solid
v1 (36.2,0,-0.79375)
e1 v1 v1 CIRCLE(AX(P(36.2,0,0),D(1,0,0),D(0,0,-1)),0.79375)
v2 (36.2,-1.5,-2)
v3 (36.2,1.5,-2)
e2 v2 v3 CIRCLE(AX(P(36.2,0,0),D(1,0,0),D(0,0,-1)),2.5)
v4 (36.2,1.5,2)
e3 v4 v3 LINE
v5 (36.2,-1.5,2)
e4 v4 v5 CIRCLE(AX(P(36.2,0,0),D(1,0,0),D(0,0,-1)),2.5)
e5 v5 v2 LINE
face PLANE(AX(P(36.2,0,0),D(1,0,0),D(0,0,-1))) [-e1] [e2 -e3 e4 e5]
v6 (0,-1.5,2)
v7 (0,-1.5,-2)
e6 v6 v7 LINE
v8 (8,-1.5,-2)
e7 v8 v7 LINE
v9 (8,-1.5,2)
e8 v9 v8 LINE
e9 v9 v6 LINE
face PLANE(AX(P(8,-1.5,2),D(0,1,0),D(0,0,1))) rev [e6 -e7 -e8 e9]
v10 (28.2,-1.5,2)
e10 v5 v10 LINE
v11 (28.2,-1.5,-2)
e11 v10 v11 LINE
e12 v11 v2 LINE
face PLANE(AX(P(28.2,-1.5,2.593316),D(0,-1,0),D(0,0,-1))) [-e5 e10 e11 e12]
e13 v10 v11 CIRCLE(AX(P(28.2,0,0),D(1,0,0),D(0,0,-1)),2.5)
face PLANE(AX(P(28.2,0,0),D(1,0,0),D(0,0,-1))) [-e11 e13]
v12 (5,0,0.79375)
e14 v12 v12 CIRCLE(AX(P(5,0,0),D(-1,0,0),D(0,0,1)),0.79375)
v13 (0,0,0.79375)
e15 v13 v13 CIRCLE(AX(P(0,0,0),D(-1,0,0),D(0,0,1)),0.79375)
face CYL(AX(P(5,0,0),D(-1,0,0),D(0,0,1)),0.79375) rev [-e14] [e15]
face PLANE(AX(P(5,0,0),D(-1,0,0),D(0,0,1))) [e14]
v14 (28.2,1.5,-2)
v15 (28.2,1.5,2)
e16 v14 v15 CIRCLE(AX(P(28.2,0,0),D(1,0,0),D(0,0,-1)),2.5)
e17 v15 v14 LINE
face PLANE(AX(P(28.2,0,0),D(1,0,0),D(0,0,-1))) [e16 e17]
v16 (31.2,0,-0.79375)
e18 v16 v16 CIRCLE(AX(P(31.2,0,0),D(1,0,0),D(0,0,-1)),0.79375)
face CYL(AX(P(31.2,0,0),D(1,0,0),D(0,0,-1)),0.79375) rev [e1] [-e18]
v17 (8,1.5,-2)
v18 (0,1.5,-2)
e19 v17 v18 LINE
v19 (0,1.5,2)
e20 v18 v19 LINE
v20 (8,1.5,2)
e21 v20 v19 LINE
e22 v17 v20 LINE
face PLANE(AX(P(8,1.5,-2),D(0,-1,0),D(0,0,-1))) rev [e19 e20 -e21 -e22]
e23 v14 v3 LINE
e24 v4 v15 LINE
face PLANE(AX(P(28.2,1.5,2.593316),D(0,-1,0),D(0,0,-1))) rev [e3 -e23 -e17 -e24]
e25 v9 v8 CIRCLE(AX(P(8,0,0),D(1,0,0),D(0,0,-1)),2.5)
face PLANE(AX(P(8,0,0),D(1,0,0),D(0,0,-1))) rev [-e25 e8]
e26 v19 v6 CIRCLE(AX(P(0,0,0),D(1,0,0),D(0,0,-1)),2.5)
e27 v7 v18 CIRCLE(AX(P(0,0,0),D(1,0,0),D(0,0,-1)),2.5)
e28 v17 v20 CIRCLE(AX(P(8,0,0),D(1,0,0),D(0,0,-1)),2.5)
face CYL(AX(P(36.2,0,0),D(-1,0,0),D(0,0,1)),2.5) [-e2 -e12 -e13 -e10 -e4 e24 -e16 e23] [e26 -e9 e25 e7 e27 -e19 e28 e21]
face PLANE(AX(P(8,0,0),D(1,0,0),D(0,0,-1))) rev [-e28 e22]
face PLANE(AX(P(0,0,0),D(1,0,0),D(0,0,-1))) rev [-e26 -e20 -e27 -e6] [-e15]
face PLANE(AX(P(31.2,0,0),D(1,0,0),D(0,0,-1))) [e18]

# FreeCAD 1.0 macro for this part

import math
import FreeCAD as App
import Part
import Sketcher

V = App.Vector
Q = App.Units.Quantity

doc = App.newDocument("Part")
params = doc.addObject("Spreadsheet::Sheet", "Params")
for row, (alias, value) in enumerate([
    ("sketch1_diameter", "5 mm"),
    ("pad1_length", "36.2 mm"),
    ("sketch2_width", "3 mm"),
    ("pocket1_length", "8 mm"),
    ("pocket2_length", "5 mm"),
    ("sketch4_radius", "2.5 mm"),
    ("sketch4_height", "4 mm"),
    ("pocket3_length", "8 mm"),
    ("pocket4_length", "5 mm"),
], start=1):
    params.set(f"A{row}", alias)
    params.set(f"B{row}", "=" + value)
    params.setAlias(f"B{row}", alias)

body = doc.addObject("PartDesign::Body", "Body")

sketch1 = body.newObject("Sketcher::SketchObject", "Sketch")
sketch1.AttachmentSupport = (doc.getObject("YZ_Plane"), [""])
sketch1.MapMode = "FlatFace"
sketch1.addGeometry(Part.Circle(V(0, 0, 0), V(0, 0, 1), 2.5), False)
sketch1.addConstraint([
    Sketcher.Constraint("Coincident", 0, 3, -1, 1),
    Sketcher.Constraint("Diameter", 0, Q("5 mm")),
])
sketch1.setExpression("Constraints[1]", "Params.sketch1_diameter")
pad1 = body.newObject("PartDesign::Pad", "Pad")
pad1.Profile = sketch1
pad1.setExpression("Length", "Params.pad1_length")

sketch2 = body.newObject("Sketcher::SketchObject", "Sketch001")
sketch2.AttachmentSupport = (doc.getObject("YZ_Plane"), [""])
sketch2.MapMode = "FlatFace"
sketch2.AttachmentOffset = App.Placement(V(0, 0, 36.2), App.Rotation())
sketch2.addGeometry([
    Part.LineSegment(V(7.2, 7.2, 0), V(-7.2, 7.2, 0)),
    Part.LineSegment(V(-7.2, 7.2, 0), V(-7.2, -7.2, 0)),
    Part.LineSegment(V(-7.2, -7.2, 0), V(7.2, -7.2, 0)),
    Part.LineSegment(V(7.2, -7.2, 0), V(7.2, 7.2, 0)),
    Part.LineSegment(V(-1.5, -2.6, 0), V(-1.5, 2.6, 0)),
    Part.LineSegment(V(-1.5, 2.6, 0), V(1.5, 2.6, 0)),
    Part.LineSegment(V(1.5, 2.6, 0), V(1.5, -2.6, 0)),
    Part.LineSegment(V(1.5, -2.6, 0), V(-1.5, -2.6, 0)),
], False)
sketch2.addConstraint([
    Sketcher.Constraint("Coincident", 0, 2, 1, 1),
    Sketcher.Constraint("Coincident", 1, 2, 2, 1),
    Sketcher.Constraint("Coincident", 2, 2, 3, 1),
    Sketcher.Constraint("Coincident", 3, 2, 0, 1),
    Sketcher.Constraint("Coincident", 4, 2, 5, 1),
    Sketcher.Constraint("Coincident", 5, 2, 6, 1),
    Sketcher.Constraint("Coincident", 6, 2, 7, 1),
    Sketcher.Constraint("Coincident", 7, 2, 4, 1),
    Sketcher.Constraint("Horizontal", 0),
    Sketcher.Constraint("Vertical", 1),
    Sketcher.Constraint("Horizontal", 2),
    Sketcher.Constraint("Vertical", 3),
    Sketcher.Constraint("Vertical", 4),
    Sketcher.Constraint("Horizontal", 5),
    Sketcher.Constraint("Vertical", 6),
    Sketcher.Constraint("Horizontal", 7),
    Sketcher.Constraint("Symmetric", 0, 2, 2, 2, -1, 1),
    Sketcher.Constraint("Symmetric", 4, 2, 6, 2, -1, 1),
    Sketcher.Constraint("Equal", 2, 1),
    Sketcher.Constraint("DistanceX", 5, 1, 5, 2, Q("3 mm")),
    Sketcher.Constraint("DistanceX", 0, 2, 0, 1, Q("14.376 mm")),
    Sketcher.Constraint("DistanceY", 4, 1, 4, 2, Q("5.186632 mm")),
])
sketch2.setExpression("Constraints[19]", "Params.sketch2_width")
pocket1 = body.newObject("PartDesign::Pocket", "Pocket")
pocket1.Profile = sketch2
pocket1.setExpression("Length", "Params.pocket1_length")

sketch3 = body.newObject("Sketcher::SketchObject", "Sketch002")
sketch3.AttachmentSupport = (doc.getObject("YZ_Plane"), [""])
sketch3.MapMode = "FlatFace"
sketch3.AttachmentOffset = App.Placement(V(0, 0, 36.2), App.Rotation())
sketch3.addGeometry(Part.Circle(V(0, 0, 0), V(0, 0, 1), 0.8), False)
sketch3.addConstraint([
    Sketcher.Constraint("Coincident", 0, 3, -1, 1),
    Sketcher.Constraint("Diameter", 0, Q("1.5875 mm")),
])
pocket2 = body.newObject("PartDesign::Pocket", "Pocket001")
pocket2.Profile = sketch3
pocket2.setExpression("Length", "Params.pocket2_length")

sketch4 = body.newObject("Sketcher::SketchObject", "Sketch003")
sketch4.AttachmentSupport = (doc.getObject("YZ_Plane"), [""])
sketch4.MapMode = "FlatFace"
sketch4.addGeometry([
    Part.LineSegment(V(7.2, 7.2, 0), V(-7.2, 7.2, 0)),
    Part.LineSegment(V(-7.2, 7.2, 0), V(-7.2, -7.2, 0)),
    Part.LineSegment(V(-7.2, -7.2, 0), V(7.2, -7.2, 0)),
    Part.LineSegment(V(7.2, -7.2, 0), V(7.2, 7.2, 0)),
    Part.LineSegment(V(1.5, 2, 0), V(1.5, -2, 0)),
    Part.ArcOfCircle(Part.Circle(V(0, 0, 0), V(0, 0, 1), 2.5), math.radians(-127), math.radians(-53)),
    Part.LineSegment(V(-1.5, -2, 0), V(-1.5, 2, 0)),
    Part.ArcOfCircle(Part.Circle(V(0, 0, 0), V(0, 0, 1), 2.5), math.radians(53), math.radians(127)),
], False)
sketch4.addConstraint([
    Sketcher.Constraint("Coincident", 0, 2, 1, 1),
    Sketcher.Constraint("Coincident", 1, 2, 2, 1),
    Sketcher.Constraint("Coincident", 2, 2, 3, 1),
    Sketcher.Constraint("Coincident", 3, 2, 0, 1),
    Sketcher.Constraint("Coincident", 4, 2, 5, 2),
    Sketcher.Constraint("Coincident", 5, 1, 6, 1),
    Sketcher.Constraint("Coincident", 6, 2, 7, 2),
    Sketcher.Constraint("Coincident", 7, 1, 4, 1),
    Sketcher.Constraint("Horizontal", 0),
    Sketcher.Constraint("Vertical", 1),
    Sketcher.Constraint("Horizontal", 2),
    Sketcher.Constraint("Vertical", 3),
    Sketcher.Constraint("Vertical", 4),
    Sketcher.Constraint("Vertical", 6),
    Sketcher.Constraint("Coincident", 5, 3, -1, 1),
    Sketcher.Constraint("Coincident", 7, 3, -1, 1),
    Sketcher.Constraint("Equal", 5, 7),
    Sketcher.Constraint("Symmetric", 0, 2, 2, 2, -1, 1),
    Sketcher.Constraint("Horizontal", 4, 2, 5, 1),
    Sketcher.Constraint("Equal", 2, 1),
    Sketcher.Constraint("Radius", 5, Q("2.5 mm")),
    Sketcher.Constraint("DistanceY", 4, 2, 4, 1, Q("4 mm")),
    Sketcher.Constraint("DistanceX", 0, 2, 0, 1, Q("14.376 mm")),
])
sketch4.setExpression("Constraints[20]", "Params.sketch4_radius")
sketch4.setExpression("Constraints[21]", "Params.sketch4_height")
pocket3 = body.newObject("PartDesign::Pocket", "Pocket002")
pocket3.Profile = sketch4
pocket3.setExpression("Length", "Params.pocket3_length")
pocket3.Reversed = True

sketch5 = body.newObject("Sketcher::SketchObject", "Sketch004")
sketch5.AttachmentSupport = (doc.getObject("YZ_Plane"), [""])
sketch5.MapMode = "FlatFace"
sketch5.addGeometry(Part.Circle(V(0, 0, 0), V(0, 0, 1), 0.8), False)
sketch5.addConstraint([
    Sketcher.Constraint("Coincident", 0, 3, -1, 1),
    Sketcher.Constraint("Diameter", 0, Q("1.5875 mm")),
])
pocket4 = body.newObject("PartDesign::Pocket", "Pocket003")
pocket4.Profile = sketch5
pocket4.setExpression("Length", "Params.pocket4_length")
pocket4.Reversed = True

doc.recompute()
